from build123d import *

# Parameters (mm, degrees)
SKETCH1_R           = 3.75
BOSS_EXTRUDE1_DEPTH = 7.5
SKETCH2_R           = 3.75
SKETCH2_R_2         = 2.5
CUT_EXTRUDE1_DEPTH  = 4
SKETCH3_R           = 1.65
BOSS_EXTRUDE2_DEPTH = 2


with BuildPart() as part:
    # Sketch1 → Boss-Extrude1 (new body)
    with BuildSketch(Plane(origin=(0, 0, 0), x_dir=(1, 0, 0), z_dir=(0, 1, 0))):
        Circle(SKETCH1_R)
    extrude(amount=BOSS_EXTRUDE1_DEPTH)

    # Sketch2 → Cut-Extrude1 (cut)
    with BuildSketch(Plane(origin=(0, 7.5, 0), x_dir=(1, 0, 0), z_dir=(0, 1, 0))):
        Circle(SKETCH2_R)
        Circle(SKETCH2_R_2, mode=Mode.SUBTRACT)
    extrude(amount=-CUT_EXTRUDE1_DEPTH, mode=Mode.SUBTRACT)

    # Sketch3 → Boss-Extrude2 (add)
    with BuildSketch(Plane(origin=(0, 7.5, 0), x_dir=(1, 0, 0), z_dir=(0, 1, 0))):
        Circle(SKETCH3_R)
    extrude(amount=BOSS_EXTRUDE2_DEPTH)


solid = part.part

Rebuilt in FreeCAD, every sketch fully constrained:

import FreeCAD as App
import Part
import Sketcher

doc = App.newDocument("Part")
body = doc.addObject("PartDesign::Body", "Body")

# Sketch on XZ plane
sketch1 = doc.addObject("Sketcher::SketchObject", "Sketch")
body.addObject(sketch1)
sketch1.AttachmentSupport = (doc.XZ_Plane, [""])
sketch1.MapMode = "FlatFace"
sketch1.addGeometry(Part.Circle(App.Vector(0, 0, 0), App.Vector(0, 0, 1), 3.8), False)
sketch1.addConstraint([
    Sketcher.Constraint("Coincident", 0, 3, -1, 1),
    Sketcher.Constraint("Diameter", 0, 7.5),
])
pad1 = doc.addObject("PartDesign::Pad", "Pad")
body.addObject(pad1)
pad1.Profile = sketch1
pad1.Length = 7.5
pad1.Reversed = True

# Sketch on XZ plane
sketch2 = doc.addObject("Sketcher::SketchObject", "Sketch001")
body.addObject(sketch2)
sketch2.AttachmentSupport = (doc.XZ_Plane, [""])
sketch2.MapMode = "FlatFace"
sketch2.AttachmentOffset = App.Placement(App.Vector(0, 0, -7.5), App.Rotation())
sketch2.addGeometry([
    Part.Circle(App.Vector(0, 0, 0), App.Vector(0, 0, 1), 3.8),
    Part.Circle(App.Vector(0, 0, 0), App.Vector(0, 0, 1), 2.5),
], False)
sketch2.addConstraint([
    Sketcher.Constraint("Coincident", 0, 3, -1, 1),
    Sketcher.Constraint("Coincident", 1, 3, -1, 1),
    Sketcher.Constraint("Diameter", 1, 5.0),
    Sketcher.Constraint("Diameter", 0, 7.5),
])
pocket1 = doc.addObject("PartDesign::Pocket", "Pocket")
body.addObject(pocket1)
pocket1.Profile = sketch2
pocket1.Length = 4
pocket1.Reversed = True

# Sketch on XZ plane
sketch3 = doc.addObject("Sketcher::SketchObject", "Sketch002")
body.addObject(sketch3)
sketch3.AttachmentSupport = (doc.XZ_Plane, [""])
sketch3.MapMode = "FlatFace"
sketch3.AttachmentOffset = App.Placement(App.Vector(0, 0, -7.5), App.Rotation())
sketch3.addGeometry(Part.Circle(App.Vector(0, 0, 0), App.Vector(0, 0, 1), 1.6), False)
sketch3.addConstraint([
    Sketcher.Constraint("Coincident", 0, 3, -1, 1),
    Sketcher.Constraint("Diameter", 0, 3.3),
])
pad2 = doc.addObject("PartDesign::Pad", "Pad001")
body.addObject(pad2)
pad2.Profile = sketch3
pad2.Length = 2
pad2.Reversed = True

doc.recompute()
